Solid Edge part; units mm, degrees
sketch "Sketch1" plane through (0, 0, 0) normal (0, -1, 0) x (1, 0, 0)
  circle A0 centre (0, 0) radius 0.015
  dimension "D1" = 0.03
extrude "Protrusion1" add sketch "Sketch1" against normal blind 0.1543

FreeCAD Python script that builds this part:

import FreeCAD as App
import Part
import Sketcher

doc = App.newDocument("Part")
body = doc.addObject("PartDesign::Body", "Body")

# Sketch on XZ plane
sketch1 = doc.addObject("Sketcher::SketchObject", "Sketch")
body.addObject(sketch1)
sketch1.AttachmentSupport = (doc.XZ_Plane, [""])
sketch1.MapMode = "FlatFace"
sketch1.addGeometry(Part.Circle(App.Vector(0, 0, 0), App.Vector(0, 0, 1), 0.015), False)
sketch1.addConstraint([
    Sketcher.Constraint("Coincident", 0, 3, -1, 1),
    Sketcher.Constraint("Diameter", 0, 0.03),
])
pad1 = doc.addObject("PartDesign::Pad", "Pad")
body.addObject(pad1)
pad1.Profile = sketch1
pad1.Length = 0.1543
pad1.Reversed = True

doc.recompute()
